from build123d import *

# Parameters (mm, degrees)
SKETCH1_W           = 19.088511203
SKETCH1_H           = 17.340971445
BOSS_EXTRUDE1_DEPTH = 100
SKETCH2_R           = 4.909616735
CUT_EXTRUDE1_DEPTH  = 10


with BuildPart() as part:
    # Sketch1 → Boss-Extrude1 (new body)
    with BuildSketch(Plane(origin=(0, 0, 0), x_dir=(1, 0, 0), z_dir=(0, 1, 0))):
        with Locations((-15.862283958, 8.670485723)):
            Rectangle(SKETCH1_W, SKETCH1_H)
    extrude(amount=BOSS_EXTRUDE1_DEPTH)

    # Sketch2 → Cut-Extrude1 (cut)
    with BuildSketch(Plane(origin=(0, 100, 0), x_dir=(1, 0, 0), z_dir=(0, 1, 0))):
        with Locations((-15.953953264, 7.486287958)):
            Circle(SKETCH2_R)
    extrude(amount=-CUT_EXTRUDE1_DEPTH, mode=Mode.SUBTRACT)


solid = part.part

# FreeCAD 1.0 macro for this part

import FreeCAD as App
import Part
import Sketcher

V = App.Vector


def add_polygon(sketch, points):
    """Adds a closed chain of lines whose ends are joined by coincident constraints."""
    first, n = sketch.GeometryCount, len(points)
    for a, b in zip(points, points[1:] + points[:1]):
        sketch.addGeometry(Part.LineSegment(App.Vector(*a, 0), App.Vector(*b, 0)), False)
    for i in range(n):
        sketch.addConstraint(Sketcher.Constraint("Coincident", first + i, 2, first + (i + 1) % n, 1))

doc = App.newDocument("Part")
body = doc.addObject("PartDesign::Body", "Body")

# Sketch on XZ plane
sketch1 = doc.addObject("Sketcher::SketchObject", "Sketch")
body.addObject(sketch1)
sketch1.AttachmentSupport = (doc.XZ_Plane, [""])
sketch1.MapMode = "FlatFace"
add_polygon(sketch1, [(-25.40654, -17.340971), (-25.40654, 0), (-6.318028, 0), (-6.318028, -17.340971)])  # lines 0-3
sketch1.addConstraint(Sketcher.Constraint("Vertical", 0))
sketch1.addConstraint(Sketcher.Constraint("Horizontal", 1))
sketch1.addConstraint(Sketcher.Constraint("Vertical", 2))
sketch1.addConstraint(Sketcher.Constraint("Horizontal", 3))
sketch1.addConstraint(Sketcher.Constraint("PointOnObject", 0, 2, -1))
sketch1.addConstraint(Sketcher.Constraint("DistanceX", 1, 1, 1, 2, 19.088511))
sketch1.addConstraint(Sketcher.Constraint("DistanceY", 0, 1, 0, 2, 17.340971))
sketch1.addConstraint(Sketcher.Constraint("DistanceX", 0, 2, -1, 1, 25.40654))
pad1 = doc.addObject("PartDesign::Pad", "Pad")
body.addObject(pad1)
pad1.Profile = sketch1
pad1.Length = 100
pad1.Reversed = True

# Sketch on XZ plane
sketch2 = doc.addObject("Sketcher::SketchObject", "Sketch001")
body.addObject(sketch2)
sketch2.AttachmentSupport = (doc.XZ_Plane, [""])
sketch2.MapMode = "FlatFace"
sketch2.AttachmentOffset = App.Placement(V(0, 0, -100), App.Rotation())
sketch2.addGeometry(Part.Circle(V(-15.953953, -7.486288, 0), V(0, 0, 1), 4.909617), False)
sketch2.addConstraint(Sketcher.Constraint("Diameter", 0, 9.819233))
sketch2.addConstraint(Sketcher.Constraint("DistanceX", 0, 3, -1, 1, 15.953953))
sketch2.addConstraint(Sketcher.Constraint("DistanceY", 0, 3, -1, 1, 7.486288))
pocket1 = doc.addObject("PartDesign::Pocket", "Pocket")
body.addObject(pocket1)
pocket1.Profile = sketch2
pocket1.Length = 10
pocket1.Reversed = True

doc.recompute()
